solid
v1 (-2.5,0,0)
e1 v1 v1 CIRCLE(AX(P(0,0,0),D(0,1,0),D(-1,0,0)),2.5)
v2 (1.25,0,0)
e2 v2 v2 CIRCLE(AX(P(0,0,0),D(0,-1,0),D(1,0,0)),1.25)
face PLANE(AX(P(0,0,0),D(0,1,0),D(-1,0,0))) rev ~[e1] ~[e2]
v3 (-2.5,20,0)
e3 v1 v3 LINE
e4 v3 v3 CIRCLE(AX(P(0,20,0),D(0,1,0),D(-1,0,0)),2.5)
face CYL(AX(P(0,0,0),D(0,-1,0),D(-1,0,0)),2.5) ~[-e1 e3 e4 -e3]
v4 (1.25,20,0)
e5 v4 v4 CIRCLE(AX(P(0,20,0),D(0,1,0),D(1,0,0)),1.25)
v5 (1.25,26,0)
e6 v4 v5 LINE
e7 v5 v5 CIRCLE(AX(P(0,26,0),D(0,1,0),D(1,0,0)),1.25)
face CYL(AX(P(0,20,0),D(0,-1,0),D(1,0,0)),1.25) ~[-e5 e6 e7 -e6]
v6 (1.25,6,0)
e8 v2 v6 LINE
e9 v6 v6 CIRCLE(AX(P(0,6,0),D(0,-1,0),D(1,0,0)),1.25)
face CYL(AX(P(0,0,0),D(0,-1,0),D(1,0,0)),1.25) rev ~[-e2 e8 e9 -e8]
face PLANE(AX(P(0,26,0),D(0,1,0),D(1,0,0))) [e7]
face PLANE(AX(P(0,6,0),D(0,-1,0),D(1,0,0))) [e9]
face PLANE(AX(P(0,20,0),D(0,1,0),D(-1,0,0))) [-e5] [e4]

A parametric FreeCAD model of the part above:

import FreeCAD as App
import Part
import Sketcher
from FreeCAD import Vector
Q = App.Units.Quantity

doc = App.newDocument("Part")
body = doc.addObject("PartDesign::Body", "Body")

# Sketch on XZ plane
sketch1 = body.newObject("Sketcher::SketchObject", "Sketch")
sketch1.AttachmentSupport = (doc.getObject("XZ_Plane"), [""])
sketch1.MapMode = "FlatFace"
sketch1.addGeometry(Part.Circle(Vector(0, 0, 0), Vector(0, 0, 1), 2.5), False)
sketch1.addConstraint(Sketcher.Constraint("Coincident", 0, 3, -1, 1))
sketch1.addConstraint(Sketcher.Constraint("Diameter", 0, Q("5 mm")))
pad1 = body.newObject("PartDesign::Pad", "Pad")
pad1.Profile = sketch1
pad1.Length = 20
pad1.Reversed = True

# Sketch on XZ plane
sketch2 = body.newObject("Sketcher::SketchObject", "Sketch001")
sketch2.AttachmentSupport = (doc.getObject("XZ_Plane"), [""])
sketch2.MapMode = "FlatFace"
sketch2.AttachmentOffset = App.Placement(Vector(0, 0, -20), App.Rotation())
sketch2.addGeometry(Part.Circle(Vector(0, 0, 0), Vector(0, 0, 1), 1.2), False)
sketch2.addConstraint(Sketcher.Constraint("Coincident", 0, 3, -1, 1))
sketch2.addConstraint(Sketcher.Constraint("Diameter", 0, Q("2.5 mm")))
pad2 = body.newObject("PartDesign::Pad", "Pad001")
pad2.Profile = sketch2
pad2.Length = 6
pad2.Reversed = True

# Sketch on XZ plane
sketch3 = body.newObject("Sketcher::SketchObject", "Sketch002")
sketch3.AttachmentSupport = (doc.getObject("XZ_Plane"), [""])
sketch3.MapMode = "FlatFace"
sketch3.addGeometry(Part.Circle(Vector(0, 0, 0), Vector(0, 0, 1), 1.2), False)
sketch3.addConstraint(Sketcher.Constraint("Coincident", 0, 3, -1, 1))
sketch3.addConstraint(Sketcher.Constraint("Diameter", 0, Q("2.5 mm")))
pocket1 = body.newObject("PartDesign::Pocket", "Pocket")
pocket1.Profile = sketch3
pocket1.Length = 6

doc.recompute()
